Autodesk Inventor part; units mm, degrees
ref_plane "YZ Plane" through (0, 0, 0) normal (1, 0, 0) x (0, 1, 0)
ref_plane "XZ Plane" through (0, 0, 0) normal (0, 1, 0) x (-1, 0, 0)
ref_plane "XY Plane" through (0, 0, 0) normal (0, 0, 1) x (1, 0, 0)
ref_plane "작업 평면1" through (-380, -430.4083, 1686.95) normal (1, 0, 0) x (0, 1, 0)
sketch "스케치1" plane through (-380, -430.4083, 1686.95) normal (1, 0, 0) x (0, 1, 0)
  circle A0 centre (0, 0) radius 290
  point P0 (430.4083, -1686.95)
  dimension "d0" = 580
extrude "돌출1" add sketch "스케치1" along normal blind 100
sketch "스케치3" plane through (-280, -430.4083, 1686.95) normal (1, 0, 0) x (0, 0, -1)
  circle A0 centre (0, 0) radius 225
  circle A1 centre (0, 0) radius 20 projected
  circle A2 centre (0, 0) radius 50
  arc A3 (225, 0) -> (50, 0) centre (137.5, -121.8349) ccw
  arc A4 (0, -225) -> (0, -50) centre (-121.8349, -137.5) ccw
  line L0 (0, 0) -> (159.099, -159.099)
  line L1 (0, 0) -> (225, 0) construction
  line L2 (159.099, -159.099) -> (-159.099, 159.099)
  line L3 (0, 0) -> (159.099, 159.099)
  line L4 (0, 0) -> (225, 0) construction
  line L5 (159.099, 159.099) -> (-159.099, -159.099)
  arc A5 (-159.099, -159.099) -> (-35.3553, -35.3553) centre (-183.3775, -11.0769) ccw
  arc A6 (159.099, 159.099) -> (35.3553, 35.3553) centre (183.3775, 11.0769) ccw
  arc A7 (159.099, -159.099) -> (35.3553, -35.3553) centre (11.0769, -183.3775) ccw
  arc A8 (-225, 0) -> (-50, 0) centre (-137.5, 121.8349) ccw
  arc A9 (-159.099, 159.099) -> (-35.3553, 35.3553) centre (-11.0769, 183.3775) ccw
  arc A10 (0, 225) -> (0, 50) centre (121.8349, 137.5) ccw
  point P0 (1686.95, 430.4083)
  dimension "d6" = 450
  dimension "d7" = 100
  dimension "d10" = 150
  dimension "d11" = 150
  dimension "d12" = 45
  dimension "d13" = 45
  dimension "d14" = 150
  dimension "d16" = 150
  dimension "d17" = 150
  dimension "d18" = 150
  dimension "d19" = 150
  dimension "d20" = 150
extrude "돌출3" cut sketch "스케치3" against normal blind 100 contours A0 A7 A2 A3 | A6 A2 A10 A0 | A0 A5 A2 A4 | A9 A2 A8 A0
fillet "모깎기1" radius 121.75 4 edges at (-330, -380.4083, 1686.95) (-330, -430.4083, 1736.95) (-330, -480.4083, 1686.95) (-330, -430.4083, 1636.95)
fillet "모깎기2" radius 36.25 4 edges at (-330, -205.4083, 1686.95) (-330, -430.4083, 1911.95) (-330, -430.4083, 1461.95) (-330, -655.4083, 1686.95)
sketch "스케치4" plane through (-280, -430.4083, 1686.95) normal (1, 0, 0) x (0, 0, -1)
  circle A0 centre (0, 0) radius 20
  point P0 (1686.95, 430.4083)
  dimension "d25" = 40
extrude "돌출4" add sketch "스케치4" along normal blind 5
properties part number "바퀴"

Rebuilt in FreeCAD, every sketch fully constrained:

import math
import FreeCAD as App
import Part
import Sketcher


def edges_at(feature, points):
    """Names of the edges that pass closest to the given points."""
    edges = feature.Shape.Edges
    near = lambda p: min(range(len(edges)), key=lambda i: edges[i].distToShape(Part.Vertex(*p))[0])
    return sorted({f"Edge{near(p) + 1}" for p in points})

doc = App.newDocument("Part")
params = doc.addObject("Spreadsheet::Sheet", "Params")
for row, (alias, value) in enumerate([
    ("sketch1_diameter", "580 mm"),
    ("pad1_length", "100 mm"),
    ("sketch2_radius", "225 mm"),
    ("sketch2_radius2", "150 mm"),
    ("sketch2_radius3", "50 mm"),
    ("pocket1_length", "100 mm"),
    ("fillet_radius", "121.75 mm"),
    ("fillet2_radius", "36.25 mm"),
    ("sketch3_diameter", "40 mm"),
    ("pad2_length", "5 mm"),
], start=1):
    params.set(f"A{row}", alias)
    params.set(f"B{row}", "=" + value)
    params.setAlias(f"B{row}", alias)

body = doc.addObject("PartDesign::Body", "Body")

# Sketch on YZ plane
sketch1 = body.newObject("Sketcher::SketchObject", "Sketch")
sketch1.AttachmentSupport = (doc.getObject("YZ_Plane"), [""])
sketch1.MapMode = "FlatFace"
sketch1.AttachmentOffset = App.Placement(App.Vector(0, 0, -380), App.Rotation())
sketch1.addGeometry(Part.Circle(App.Vector(-430, 1687, 0), App.Vector(0, 0, 1), 290), False)
sketch1.addConstraint([
    Sketcher.Constraint("Diameter", 0, 580.0),
    Sketcher.Constraint("DistanceY", -1, 1, 0, 3, 1686.95),
    Sketcher.Constraint("DistanceX", 0, 3, -1, 1, 430.4083),
])
sketch1.setExpression("Constraints[0]", "Params.sketch1_diameter")
pad1 = body.newObject("PartDesign::Pad", "Pad")
pad1.Profile = sketch1
pad1.setExpression("Length", "Params.pad1_length")

# Sketch on YZ plane
sketch2 = body.newObject("Sketcher::SketchObject", "Sketch001")
sketch2.AttachmentSupport = (doc.getObject("YZ_Plane"), [""])
sketch2.MapMode = "FlatFace"
sketch2.AttachmentOffset = App.Placement(App.Vector(0, 0, -280), App.Rotation())
sketch2.addGeometry([
    Part.ArcOfCircle(Part.Circle(App.Vector(-430, 1687, 0), App.Vector(0, 0, 1), 225), math.radians(-135), math.radians(-90)),  # 0
    Part.ArcOfCircle(Part.Circle(App.Vector(-552, 1549, 0), App.Vector(0, 0, 1), 150), math.radians(-36), math.radians(36)),  # 1
    Part.ArcOfCircle(Part.Circle(App.Vector(-430, 1687, 0), App.Vector(0, 0, 1), 50), math.radians(-135), math.radians(-90)),  # 2
    Part.ArcOfCircle(Part.Circle(App.Vector(-614, 1676, 0), App.Vector(0, 0, 1), 150), math.radians(-81), math.radians(-9)),  # 3
    Part.ArcOfCircle(Part.Circle(App.Vector(-419, 1504, 0), App.Vector(0, 0, 1), 150), math.radians(9), math.radians(81)),  # 4
    Part.ArcOfCircle(Part.Circle(App.Vector(-430, 1687, 0), App.Vector(0, 0, 1), 225), math.radians(-45), math.radians(0)),  # 5
    Part.ArcOfCircle(Part.Circle(App.Vector(-293, 1565, 0), App.Vector(0, 0, 1), 150), math.radians(54), math.radians(126)),  # 6
    Part.ArcOfCircle(Part.Circle(App.Vector(-430, 1687, 0), App.Vector(0, 0, 1), 50), math.radians(-45), math.radians(0)),  # 7
    Part.ArcOfCircle(Part.Circle(App.Vector(-430, 1687, 0), App.Vector(0, 0, 1), 225), math.radians(135), math.radians(180)),  # 8
    Part.ArcOfCircle(Part.Circle(App.Vector(-568, 1809, 0), App.Vector(0, 0, 1), 150), math.radians(-126), math.radians(-54)),  # 9
    Part.ArcOfCircle(Part.Circle(App.Vector(-430, 1687, 0), App.Vector(0, 0, 1), 50), math.radians(135), math.radians(180)),  # 10
    Part.ArcOfCircle(Part.Circle(App.Vector(-441, 1870, 0), App.Vector(0, 0, 1), 150), math.radians(-171), math.radians(-99)),  # 11
    Part.ArcOfCircle(Part.Circle(App.Vector(-247, 1698, 0), App.Vector(0, 0, 1), 150), math.radians(99), math.radians(171)),  # 12
    Part.ArcOfCircle(Part.Circle(App.Vector(-430, 1687, 0), App.Vector(0, 0, 1), 225), math.radians(45), math.radians(90)),  # 13
    Part.ArcOfCircle(Part.Circle(App.Vector(-309, 1824, 0), App.Vector(0, 0, 1), 150), math.radians(144), math.radians(216)),  # 14
    Part.ArcOfCircle(Part.Circle(App.Vector(-430, 1687, 0), App.Vector(0, 0, 1), 50), math.radians(45), math.radians(90)),  # 15
], False)
sketch2.addConstraint([
    Sketcher.Constraint("Coincident", 0, 2, 1, 1),
    Sketcher.Constraint("Coincident", 1, 2, 2, 2),
    Sketcher.Constraint("Coincident", 2, 1, 3, 2),
    Sketcher.Constraint("Coincident", 3, 1, 0, 1),
    Sketcher.Constraint("Coincident", 4, 1, 5, 1),
    Sketcher.Constraint("Coincident", 5, 2, 6, 1),
    Sketcher.Constraint("Coincident", 6, 2, 7, 2),
    Sketcher.Constraint("Coincident", 7, 1, 4, 2),
    Sketcher.Constraint("Coincident", 8, 2, 9, 1),
    Sketcher.Constraint("Coincident", 9, 2, 10, 2),
    Sketcher.Constraint("Coincident", 10, 1, 11, 2),
    Sketcher.Constraint("Coincident", 11, 1, 8, 1),
    Sketcher.Constraint("Coincident", 12, 1, 13, 1),
    Sketcher.Constraint("Coincident", 13, 2, 14, 1),
    Sketcher.Constraint("Coincident", 14, 2, 15, 2),
    Sketcher.Constraint("Coincident", 15, 1, 12, 2),
    Sketcher.Constraint("Coincident", 2, 3, 0, 3),
    Sketcher.Constraint("Coincident", 5, 3, 0, 3),
    Sketcher.Constraint("Coincident", 7, 3, 0, 3),
    Sketcher.Constraint("Coincident", 8, 3, 0, 3),
    Sketcher.Constraint("Coincident", 10, 3, 0, 3),
    Sketcher.Constraint("Coincident", 13, 3, 0, 3),
    Sketcher.Constraint("Coincident", 15, 3, 0, 3),
    Sketcher.Constraint("Equal", 1, 3),
    Sketcher.Constraint("Equal", 3, 4),
    Sketcher.Constraint("Equal", 0, 5),
    Sketcher.Constraint("Equal", 4, 6),
    Sketcher.Constraint("Equal", 2, 7),
    Sketcher.Constraint("Equal", 5, 8),
    Sketcher.Constraint("Equal", 6, 9),
    Sketcher.Constraint("Equal", 7, 10),
    Sketcher.Constraint("Equal", 9, 11),
    Sketcher.Constraint("Equal", 11, 12),
    Sketcher.Constraint("Equal", 8, 13),
    Sketcher.Constraint("Equal", 12, 14),
    Sketcher.Constraint("Equal", 10, 15),
    Sketcher.Constraint("Horizontal", 3, 1, 4, 1),
    Sketcher.Constraint("Horizontal", 15, 3, 5, 2),
    Sketcher.Constraint("Horizontal", 5, 2, 6, 2),
    Sketcher.Constraint("Horizontal", 2, 1, 7, 1),
    Sketcher.Constraint("Horizontal", 6, 2, 8, 2),
    Sketcher.Constraint("Horizontal", 8, 2, 9, 2),
    Sketcher.Constraint("Horizontal", 11, 1, 12, 1),
    Sketcher.Constraint("Horizontal", 10, 1, 15, 1),
    Sketcher.Constraint("Vertical", 15, 3, 0, 2),
    Sketcher.Constraint("Vertical", 0, 2, 1, 2),
    Sketcher.Constraint("Vertical", 2, 1, 10, 1),
    Sketcher.Constraint("Vertical", 3, 1, 11, 1),
    Sketcher.Constraint("Vertical", 1, 2, 13, 2),
    Sketcher.Constraint("Vertical", 13, 2, 14, 2),
    Sketcher.Constraint("Radius", 0, 225.0),
    Sketcher.Constraint("Radius", 1, 150.0),
    Sketcher.Constraint("Radius", 2, 50.0),
    Sketcher.Constraint("DistanceY", -1, 1, 0, 3, 1686.95),
    Sketcher.Constraint("DistanceY", -1, 1, 3, 3, 1675.873),
    Sketcher.Constraint("DistanceY", -1, 1, 3, 1, 1527.851),
    Sketcher.Constraint("DistanceX", 7, 1, -1, 1, 395.053),
])
sketch2.setExpression("Constraints[50]", "Params.sketch2_radius")
sketch2.setExpression("Constraints[51]", "Params.sketch2_radius2")
sketch2.setExpression("Constraints[52]", "Params.sketch2_radius3")
pocket1 = body.newObject("PartDesign::Pocket", "Pocket")
pocket1.Profile = sketch2
pocket1.setExpression("Length", "Params.pocket1_length")
doc.recompute()

fillet = body.newObject("PartDesign::Fillet", "Fillet")
fillet.Base = (pocket1, edges_at(pocket1, [
    (-330, -380.408, 1686.95),
    (-330, -430.408, 1736.95),
    (-330, -480.408, 1686.95),
    (-330, -430.408, 1636.95),
]))
fillet.setExpression("Radius", "Params.fillet_radius")
doc.recompute()

fillet2 = body.newObject("PartDesign::Fillet", "Fillet001")
fillet2.Base = (fillet, edges_at(fillet, [
    (-330, -205.408, 1686.95),
    (-330, -430.408, 1911.95),
    (-330, -430.408, 1461.95),
    (-330, -655.408, 1686.95),
]))
fillet2.setExpression("Radius", "Params.fillet2_radius")

# Sketch on YZ plane
sketch3 = body.newObject("Sketcher::SketchObject", "Sketch002")
sketch3.AttachmentSupport = (doc.getObject("YZ_Plane"), [""])
sketch3.MapMode = "FlatFace"
sketch3.AttachmentOffset = App.Placement(App.Vector(0, 0, -280), App.Rotation())
sketch3.addGeometry(Part.Circle(App.Vector(-430, 1687, 0), App.Vector(0, 0, 1), 20), False)
sketch3.addConstraint([
    Sketcher.Constraint("Diameter", 0, 40.0),
    Sketcher.Constraint("DistanceY", -1, 1, 0, 3, 1686.95),
    Sketcher.Constraint("DistanceX", 0, 3, -1, 1, 430.4083),
])
sketch3.setExpression("Constraints[0]", "Params.sketch3_diameter")
pad2 = body.newObject("PartDesign::Pad", "Pad001")
pad2.Profile = sketch3
pad2.setExpression("Length", "Params.pad2_length")

doc.recompute()
